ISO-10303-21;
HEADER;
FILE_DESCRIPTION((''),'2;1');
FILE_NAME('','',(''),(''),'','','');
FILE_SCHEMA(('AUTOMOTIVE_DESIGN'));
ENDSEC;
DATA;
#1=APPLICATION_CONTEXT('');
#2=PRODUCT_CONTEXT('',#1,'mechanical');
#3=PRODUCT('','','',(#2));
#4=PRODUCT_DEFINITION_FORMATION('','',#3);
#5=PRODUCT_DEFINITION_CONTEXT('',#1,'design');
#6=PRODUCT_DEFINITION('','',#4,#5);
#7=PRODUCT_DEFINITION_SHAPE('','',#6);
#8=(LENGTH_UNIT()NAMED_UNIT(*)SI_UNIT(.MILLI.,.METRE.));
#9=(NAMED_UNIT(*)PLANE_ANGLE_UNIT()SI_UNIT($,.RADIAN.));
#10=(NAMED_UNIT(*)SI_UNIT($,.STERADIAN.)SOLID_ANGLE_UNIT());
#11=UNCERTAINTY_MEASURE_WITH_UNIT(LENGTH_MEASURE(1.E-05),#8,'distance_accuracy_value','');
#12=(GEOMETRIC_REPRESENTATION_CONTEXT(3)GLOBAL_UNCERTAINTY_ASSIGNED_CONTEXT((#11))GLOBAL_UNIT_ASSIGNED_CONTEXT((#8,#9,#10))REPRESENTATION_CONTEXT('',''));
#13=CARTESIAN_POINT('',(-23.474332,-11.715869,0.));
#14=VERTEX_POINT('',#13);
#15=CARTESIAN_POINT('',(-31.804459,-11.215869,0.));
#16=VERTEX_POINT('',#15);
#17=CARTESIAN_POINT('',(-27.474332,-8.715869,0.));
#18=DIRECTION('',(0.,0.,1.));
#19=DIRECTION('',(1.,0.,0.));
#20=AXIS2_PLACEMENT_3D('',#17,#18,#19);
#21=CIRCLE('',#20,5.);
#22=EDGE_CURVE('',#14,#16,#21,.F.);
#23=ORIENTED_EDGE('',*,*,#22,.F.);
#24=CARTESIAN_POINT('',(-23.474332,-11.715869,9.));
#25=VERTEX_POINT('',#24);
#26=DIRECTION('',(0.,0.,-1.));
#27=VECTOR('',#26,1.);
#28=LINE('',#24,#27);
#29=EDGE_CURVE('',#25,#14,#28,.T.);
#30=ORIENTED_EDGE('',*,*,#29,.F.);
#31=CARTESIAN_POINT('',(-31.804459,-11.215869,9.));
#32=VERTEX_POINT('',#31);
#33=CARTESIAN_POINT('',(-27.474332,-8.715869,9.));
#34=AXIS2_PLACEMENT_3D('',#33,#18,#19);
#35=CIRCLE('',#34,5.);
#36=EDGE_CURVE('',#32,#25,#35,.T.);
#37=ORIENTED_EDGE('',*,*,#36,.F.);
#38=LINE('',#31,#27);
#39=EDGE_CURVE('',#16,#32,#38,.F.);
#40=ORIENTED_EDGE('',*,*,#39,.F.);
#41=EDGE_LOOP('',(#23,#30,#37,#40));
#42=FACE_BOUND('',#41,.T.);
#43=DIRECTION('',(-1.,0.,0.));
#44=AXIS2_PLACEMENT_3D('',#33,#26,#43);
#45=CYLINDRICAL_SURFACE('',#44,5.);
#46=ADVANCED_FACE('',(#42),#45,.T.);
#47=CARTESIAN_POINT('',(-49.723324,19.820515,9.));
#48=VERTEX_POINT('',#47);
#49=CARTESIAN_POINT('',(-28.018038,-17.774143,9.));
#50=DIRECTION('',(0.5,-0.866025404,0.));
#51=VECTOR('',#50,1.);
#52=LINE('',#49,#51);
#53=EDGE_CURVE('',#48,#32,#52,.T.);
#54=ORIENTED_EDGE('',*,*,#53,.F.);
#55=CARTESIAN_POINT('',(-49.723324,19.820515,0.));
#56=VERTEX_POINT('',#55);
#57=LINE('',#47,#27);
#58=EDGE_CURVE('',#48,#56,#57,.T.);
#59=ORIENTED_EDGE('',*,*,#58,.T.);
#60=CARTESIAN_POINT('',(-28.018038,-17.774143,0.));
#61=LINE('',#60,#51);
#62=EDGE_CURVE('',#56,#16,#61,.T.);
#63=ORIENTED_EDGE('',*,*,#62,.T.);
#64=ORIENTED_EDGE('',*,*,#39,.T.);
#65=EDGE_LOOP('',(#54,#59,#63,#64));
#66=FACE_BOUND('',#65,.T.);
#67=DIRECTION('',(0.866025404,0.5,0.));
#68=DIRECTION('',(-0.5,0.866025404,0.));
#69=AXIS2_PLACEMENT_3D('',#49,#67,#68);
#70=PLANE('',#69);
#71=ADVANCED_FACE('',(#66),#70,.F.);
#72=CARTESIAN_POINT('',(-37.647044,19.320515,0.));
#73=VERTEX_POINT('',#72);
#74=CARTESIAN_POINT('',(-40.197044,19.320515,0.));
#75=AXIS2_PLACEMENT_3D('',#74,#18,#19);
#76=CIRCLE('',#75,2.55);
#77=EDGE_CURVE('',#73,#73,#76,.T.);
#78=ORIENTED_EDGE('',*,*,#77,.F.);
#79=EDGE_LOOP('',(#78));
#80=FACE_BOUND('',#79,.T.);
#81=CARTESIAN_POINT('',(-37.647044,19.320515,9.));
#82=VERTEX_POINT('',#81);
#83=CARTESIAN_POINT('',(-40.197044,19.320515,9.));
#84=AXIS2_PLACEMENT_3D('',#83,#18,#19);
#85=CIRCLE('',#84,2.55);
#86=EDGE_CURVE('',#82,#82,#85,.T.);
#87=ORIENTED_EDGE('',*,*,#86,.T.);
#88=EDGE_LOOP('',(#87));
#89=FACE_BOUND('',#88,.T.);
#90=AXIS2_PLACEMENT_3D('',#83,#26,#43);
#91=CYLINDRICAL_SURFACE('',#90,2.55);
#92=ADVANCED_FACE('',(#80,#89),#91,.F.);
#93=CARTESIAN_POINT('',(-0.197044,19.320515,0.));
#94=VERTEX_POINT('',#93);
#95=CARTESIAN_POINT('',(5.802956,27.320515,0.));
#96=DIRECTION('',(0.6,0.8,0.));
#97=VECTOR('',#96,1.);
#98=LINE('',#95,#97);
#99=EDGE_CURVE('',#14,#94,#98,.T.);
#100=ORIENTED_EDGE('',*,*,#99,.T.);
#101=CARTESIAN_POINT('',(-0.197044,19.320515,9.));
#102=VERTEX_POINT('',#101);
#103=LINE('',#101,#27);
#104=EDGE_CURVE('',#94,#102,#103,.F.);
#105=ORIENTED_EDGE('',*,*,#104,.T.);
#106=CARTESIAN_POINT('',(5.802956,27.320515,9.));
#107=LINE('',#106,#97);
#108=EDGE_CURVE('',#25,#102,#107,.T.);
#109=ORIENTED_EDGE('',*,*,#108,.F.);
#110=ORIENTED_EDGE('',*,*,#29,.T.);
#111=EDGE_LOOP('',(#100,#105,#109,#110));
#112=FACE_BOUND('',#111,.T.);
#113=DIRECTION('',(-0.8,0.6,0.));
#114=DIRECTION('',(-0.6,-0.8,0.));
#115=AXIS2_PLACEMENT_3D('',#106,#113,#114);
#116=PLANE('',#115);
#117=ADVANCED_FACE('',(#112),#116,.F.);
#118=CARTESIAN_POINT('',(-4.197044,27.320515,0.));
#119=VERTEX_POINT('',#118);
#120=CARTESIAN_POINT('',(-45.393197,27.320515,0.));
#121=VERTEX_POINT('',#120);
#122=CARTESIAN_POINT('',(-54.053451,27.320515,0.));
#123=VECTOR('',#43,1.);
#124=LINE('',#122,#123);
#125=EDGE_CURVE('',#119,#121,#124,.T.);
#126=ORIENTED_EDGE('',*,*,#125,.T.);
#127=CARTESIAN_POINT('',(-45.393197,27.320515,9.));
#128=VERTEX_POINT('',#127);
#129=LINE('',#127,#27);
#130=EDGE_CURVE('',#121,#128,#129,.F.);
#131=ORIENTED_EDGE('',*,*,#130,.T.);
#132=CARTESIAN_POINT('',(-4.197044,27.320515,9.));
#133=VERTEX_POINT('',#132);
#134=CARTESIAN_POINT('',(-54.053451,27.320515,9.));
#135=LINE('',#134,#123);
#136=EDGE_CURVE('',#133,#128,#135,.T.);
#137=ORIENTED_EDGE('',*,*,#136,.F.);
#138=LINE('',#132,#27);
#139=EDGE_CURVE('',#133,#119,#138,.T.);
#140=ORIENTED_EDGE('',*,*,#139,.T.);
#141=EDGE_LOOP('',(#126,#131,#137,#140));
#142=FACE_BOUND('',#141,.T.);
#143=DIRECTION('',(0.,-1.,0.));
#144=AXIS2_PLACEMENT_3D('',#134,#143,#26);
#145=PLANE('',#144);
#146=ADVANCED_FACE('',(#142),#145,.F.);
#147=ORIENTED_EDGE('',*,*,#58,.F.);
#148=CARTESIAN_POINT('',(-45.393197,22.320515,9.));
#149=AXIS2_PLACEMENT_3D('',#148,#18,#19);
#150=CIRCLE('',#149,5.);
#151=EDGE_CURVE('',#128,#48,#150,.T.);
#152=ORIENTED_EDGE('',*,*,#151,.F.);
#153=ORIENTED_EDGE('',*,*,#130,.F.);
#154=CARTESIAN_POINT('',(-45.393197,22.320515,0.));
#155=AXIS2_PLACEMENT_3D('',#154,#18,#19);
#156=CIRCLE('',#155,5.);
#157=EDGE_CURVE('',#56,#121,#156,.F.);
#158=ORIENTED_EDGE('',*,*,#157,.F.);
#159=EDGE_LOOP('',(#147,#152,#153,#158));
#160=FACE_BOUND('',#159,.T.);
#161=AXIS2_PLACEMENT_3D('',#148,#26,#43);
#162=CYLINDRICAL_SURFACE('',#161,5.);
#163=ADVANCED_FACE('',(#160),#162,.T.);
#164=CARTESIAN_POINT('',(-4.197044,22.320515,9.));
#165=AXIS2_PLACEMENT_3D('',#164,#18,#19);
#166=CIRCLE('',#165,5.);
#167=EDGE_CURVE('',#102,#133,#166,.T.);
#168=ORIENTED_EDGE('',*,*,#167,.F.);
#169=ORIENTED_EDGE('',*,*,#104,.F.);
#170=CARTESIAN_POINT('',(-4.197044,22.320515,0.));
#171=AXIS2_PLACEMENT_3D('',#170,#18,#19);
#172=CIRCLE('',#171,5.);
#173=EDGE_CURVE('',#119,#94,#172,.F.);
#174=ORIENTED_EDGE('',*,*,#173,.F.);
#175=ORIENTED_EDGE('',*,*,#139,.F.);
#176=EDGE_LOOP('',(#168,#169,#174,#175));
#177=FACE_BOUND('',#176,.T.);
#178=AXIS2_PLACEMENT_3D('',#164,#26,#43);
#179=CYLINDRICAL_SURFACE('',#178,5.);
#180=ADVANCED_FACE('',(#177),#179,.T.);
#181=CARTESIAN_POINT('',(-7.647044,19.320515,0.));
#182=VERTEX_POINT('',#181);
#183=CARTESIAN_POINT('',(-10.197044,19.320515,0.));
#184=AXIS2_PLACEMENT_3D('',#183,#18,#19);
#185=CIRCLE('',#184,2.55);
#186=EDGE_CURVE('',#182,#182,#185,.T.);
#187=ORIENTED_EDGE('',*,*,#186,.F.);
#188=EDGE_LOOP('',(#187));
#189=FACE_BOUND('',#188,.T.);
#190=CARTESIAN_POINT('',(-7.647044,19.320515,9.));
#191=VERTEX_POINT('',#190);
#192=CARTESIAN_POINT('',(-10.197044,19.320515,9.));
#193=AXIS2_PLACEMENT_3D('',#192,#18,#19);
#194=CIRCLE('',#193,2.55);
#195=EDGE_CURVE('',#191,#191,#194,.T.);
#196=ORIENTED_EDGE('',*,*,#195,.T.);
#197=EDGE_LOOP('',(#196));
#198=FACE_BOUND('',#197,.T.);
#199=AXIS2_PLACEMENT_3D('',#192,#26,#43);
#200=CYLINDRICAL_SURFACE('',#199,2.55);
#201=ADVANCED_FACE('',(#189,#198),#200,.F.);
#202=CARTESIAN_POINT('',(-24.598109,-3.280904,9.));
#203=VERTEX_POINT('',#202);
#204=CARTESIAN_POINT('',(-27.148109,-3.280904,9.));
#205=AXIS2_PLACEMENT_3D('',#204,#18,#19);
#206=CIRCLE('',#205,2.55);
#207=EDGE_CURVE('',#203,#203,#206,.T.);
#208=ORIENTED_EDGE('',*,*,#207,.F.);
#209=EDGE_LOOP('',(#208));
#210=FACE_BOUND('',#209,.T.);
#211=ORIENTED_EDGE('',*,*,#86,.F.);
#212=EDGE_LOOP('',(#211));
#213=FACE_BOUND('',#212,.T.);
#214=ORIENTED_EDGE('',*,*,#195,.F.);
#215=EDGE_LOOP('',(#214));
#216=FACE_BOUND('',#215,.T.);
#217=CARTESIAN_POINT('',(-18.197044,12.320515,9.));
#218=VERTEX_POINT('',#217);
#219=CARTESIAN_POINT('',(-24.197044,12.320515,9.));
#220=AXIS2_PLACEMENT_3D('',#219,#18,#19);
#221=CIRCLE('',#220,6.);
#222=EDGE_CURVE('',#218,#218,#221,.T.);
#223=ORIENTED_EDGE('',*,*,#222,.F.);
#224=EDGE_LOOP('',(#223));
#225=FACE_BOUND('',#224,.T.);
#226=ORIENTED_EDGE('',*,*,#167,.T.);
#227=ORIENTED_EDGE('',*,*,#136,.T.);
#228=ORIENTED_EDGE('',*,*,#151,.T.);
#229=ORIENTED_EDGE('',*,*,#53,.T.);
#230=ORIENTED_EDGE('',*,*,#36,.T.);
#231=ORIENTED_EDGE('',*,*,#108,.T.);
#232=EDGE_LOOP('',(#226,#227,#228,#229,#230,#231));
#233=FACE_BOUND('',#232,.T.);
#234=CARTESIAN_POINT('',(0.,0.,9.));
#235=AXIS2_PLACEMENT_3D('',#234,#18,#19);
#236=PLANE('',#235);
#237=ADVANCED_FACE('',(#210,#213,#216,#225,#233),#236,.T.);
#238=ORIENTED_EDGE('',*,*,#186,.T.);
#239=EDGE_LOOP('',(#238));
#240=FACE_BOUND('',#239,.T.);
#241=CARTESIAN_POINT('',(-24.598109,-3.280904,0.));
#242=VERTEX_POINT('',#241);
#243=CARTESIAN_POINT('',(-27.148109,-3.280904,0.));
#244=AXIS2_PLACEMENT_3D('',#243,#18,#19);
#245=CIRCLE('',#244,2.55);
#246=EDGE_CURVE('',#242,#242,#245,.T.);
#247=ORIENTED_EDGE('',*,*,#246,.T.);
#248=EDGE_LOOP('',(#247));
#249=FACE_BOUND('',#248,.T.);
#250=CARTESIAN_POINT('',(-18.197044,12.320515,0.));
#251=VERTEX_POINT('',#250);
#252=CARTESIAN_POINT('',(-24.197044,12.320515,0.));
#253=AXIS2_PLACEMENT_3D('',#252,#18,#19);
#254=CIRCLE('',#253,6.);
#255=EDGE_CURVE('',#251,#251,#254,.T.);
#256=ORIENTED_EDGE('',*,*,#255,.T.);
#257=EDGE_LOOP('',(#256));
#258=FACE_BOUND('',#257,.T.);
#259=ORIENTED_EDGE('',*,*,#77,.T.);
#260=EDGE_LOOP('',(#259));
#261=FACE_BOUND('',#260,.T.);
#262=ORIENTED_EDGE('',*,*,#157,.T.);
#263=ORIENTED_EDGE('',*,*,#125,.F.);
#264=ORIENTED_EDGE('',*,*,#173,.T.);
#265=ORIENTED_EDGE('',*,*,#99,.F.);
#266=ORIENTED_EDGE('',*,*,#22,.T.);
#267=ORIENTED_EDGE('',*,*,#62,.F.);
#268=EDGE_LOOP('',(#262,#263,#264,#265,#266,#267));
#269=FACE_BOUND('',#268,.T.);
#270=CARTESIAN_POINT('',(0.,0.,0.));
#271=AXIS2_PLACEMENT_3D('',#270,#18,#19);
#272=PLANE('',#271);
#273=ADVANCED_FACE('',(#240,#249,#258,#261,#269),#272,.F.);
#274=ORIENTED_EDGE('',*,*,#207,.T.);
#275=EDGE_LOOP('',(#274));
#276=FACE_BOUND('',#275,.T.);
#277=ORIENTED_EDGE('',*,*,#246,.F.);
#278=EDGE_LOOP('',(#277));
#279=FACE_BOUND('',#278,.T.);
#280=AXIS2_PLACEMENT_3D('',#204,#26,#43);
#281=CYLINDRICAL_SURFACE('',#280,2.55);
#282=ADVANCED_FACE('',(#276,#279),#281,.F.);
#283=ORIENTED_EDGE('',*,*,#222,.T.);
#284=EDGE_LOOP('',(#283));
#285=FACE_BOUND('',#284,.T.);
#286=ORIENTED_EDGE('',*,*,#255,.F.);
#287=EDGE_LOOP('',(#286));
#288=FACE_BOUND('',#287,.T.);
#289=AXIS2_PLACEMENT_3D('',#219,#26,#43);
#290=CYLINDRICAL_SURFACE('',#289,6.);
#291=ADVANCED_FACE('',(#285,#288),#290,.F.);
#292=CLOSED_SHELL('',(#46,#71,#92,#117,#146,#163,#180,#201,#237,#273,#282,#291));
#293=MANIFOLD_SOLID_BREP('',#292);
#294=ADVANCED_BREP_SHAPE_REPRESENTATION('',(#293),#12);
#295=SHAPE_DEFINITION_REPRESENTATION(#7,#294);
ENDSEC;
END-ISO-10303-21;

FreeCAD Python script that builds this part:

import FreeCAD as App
import Part
import Sketcher

V = App.Vector
Q = App.Units.Quantity


def edges_at(feature, points):
    """Names of the edges that pass closest to the given points."""
    edges = feature.Shape.Edges
    near = lambda p: min(range(len(edges)), key=lambda i: edges[i].distToShape(Part.Vertex(*p))[0])
    return sorted({f"Edge{near(p) + 1}" for p in points})


def add_polygon(sketch, points):
    """Adds a closed chain of lines whose ends are joined by coincident constraints."""
    first, n = sketch.GeometryCount, len(points)
    for a, b in zip(points, points[1:] + points[:1]):
        sketch.addGeometry(Part.LineSegment(App.Vector(*a, 0), App.Vector(*b, 0)), False)
    for i in range(n):
        sketch.addConstraint(Sketcher.Constraint("Coincident", first + i, 2, first + (i + 1) % n, 1))

doc = App.newDocument("Part")
body = doc.addObject("PartDesign::Body", "Body")

# Sketch on XY plane
sketch1 = doc.addObject("Sketcher::SketchObject", "Sketch")
body.addObject(sketch1)
sketch1.AttachmentSupport = (doc.XY_Plane, [""])
sketch1.MapMode = "FlatFace"
add_polygon(sketch1, [(5.802956, 27.320515), (-54.053451, 27.320515), (-28.018038, -17.774143)])  # lines 0-2
sketch1.addGeometry(Part.Circle(V(-27.148109, -3.280904, 0), V(0, 0, 1), 2.55), False)  # 3
sketch1.addGeometry(Part.Circle(V(-24.197044, 12.320515, 0), V(0, 0, 1), 6), False)  # 4
sketch1.addGeometry(Part.Circle(V(-10.197044, 19.320515, 0), V(0, 0, 1), 2.55), False)  # 5
sketch1.addGeometry(Part.Circle(V(-40.197044, 19.320515, 0), V(0, 0, 1), 2.55), False)  # 6
sketch1.addConstraint([
    Sketcher.Constraint("Horizontal", 0),
    Sketcher.Constraint("Equal", 3, 5),
    Sketcher.Constraint("Equal", 5, 6),
    Sketcher.Constraint("Horizontal", 5, 3, 6, 3),
    Sketcher.Constraint("Diameter", 4, 12.0),
    Sketcher.Constraint("Diameter", 3, 5.1),
    Sketcher.Constraint("Angle", 1, Q("-60 deg")),
    Sketcher.Constraint("DistanceX", 4, 3, 5, 3, 14.0),
    Sketcher.Constraint("DistanceY", 4, 3, 5, 3, 7.0),
    Sketcher.Constraint("DistanceX", 6, 3, 4, 3, 16.0),
    Sketcher.Constraint("DistanceY", 6, 3, 0, 2, 8.0),
    Sketcher.Constraint("DistanceX", 5, 3, 2, 2, 16.0),
    Sketcher.Constraint("DistanceX", 0, 2, 0, 1, 59.856406),
    Sketcher.Constraint("DistanceX", 3, 3, -1, 1, 27.148109),
    Sketcher.Constraint("DistanceX", 0, 2, -1, 1, 54.053451),
    Sketcher.Constraint("DistanceY", 3, 3, 4, 3, 15.601419),
    Sketcher.Constraint("DistanceX", 1, 2, 3, 3, 0.869929),
    Sketcher.Constraint("DistanceY", 3, 3, -1, 1, 3.280904),
])
pad1 = doc.addObject("PartDesign::Pad", "Pad")
body.addObject(pad1)
pad1.Profile = sketch1
pad1.Length = 9
doc.recompute()

fillet = doc.addObject("PartDesign::Fillet", "Fillet")
body.addObject(fillet)
fillet.Base = (pad1, edges_at(pad1, [(-54.053, 27.321, 4.5), (5.803, 27.321, 4.5), (-28.018, -17.774, 4.5)]))
fillet.Radius = 5

doc.recompute()
